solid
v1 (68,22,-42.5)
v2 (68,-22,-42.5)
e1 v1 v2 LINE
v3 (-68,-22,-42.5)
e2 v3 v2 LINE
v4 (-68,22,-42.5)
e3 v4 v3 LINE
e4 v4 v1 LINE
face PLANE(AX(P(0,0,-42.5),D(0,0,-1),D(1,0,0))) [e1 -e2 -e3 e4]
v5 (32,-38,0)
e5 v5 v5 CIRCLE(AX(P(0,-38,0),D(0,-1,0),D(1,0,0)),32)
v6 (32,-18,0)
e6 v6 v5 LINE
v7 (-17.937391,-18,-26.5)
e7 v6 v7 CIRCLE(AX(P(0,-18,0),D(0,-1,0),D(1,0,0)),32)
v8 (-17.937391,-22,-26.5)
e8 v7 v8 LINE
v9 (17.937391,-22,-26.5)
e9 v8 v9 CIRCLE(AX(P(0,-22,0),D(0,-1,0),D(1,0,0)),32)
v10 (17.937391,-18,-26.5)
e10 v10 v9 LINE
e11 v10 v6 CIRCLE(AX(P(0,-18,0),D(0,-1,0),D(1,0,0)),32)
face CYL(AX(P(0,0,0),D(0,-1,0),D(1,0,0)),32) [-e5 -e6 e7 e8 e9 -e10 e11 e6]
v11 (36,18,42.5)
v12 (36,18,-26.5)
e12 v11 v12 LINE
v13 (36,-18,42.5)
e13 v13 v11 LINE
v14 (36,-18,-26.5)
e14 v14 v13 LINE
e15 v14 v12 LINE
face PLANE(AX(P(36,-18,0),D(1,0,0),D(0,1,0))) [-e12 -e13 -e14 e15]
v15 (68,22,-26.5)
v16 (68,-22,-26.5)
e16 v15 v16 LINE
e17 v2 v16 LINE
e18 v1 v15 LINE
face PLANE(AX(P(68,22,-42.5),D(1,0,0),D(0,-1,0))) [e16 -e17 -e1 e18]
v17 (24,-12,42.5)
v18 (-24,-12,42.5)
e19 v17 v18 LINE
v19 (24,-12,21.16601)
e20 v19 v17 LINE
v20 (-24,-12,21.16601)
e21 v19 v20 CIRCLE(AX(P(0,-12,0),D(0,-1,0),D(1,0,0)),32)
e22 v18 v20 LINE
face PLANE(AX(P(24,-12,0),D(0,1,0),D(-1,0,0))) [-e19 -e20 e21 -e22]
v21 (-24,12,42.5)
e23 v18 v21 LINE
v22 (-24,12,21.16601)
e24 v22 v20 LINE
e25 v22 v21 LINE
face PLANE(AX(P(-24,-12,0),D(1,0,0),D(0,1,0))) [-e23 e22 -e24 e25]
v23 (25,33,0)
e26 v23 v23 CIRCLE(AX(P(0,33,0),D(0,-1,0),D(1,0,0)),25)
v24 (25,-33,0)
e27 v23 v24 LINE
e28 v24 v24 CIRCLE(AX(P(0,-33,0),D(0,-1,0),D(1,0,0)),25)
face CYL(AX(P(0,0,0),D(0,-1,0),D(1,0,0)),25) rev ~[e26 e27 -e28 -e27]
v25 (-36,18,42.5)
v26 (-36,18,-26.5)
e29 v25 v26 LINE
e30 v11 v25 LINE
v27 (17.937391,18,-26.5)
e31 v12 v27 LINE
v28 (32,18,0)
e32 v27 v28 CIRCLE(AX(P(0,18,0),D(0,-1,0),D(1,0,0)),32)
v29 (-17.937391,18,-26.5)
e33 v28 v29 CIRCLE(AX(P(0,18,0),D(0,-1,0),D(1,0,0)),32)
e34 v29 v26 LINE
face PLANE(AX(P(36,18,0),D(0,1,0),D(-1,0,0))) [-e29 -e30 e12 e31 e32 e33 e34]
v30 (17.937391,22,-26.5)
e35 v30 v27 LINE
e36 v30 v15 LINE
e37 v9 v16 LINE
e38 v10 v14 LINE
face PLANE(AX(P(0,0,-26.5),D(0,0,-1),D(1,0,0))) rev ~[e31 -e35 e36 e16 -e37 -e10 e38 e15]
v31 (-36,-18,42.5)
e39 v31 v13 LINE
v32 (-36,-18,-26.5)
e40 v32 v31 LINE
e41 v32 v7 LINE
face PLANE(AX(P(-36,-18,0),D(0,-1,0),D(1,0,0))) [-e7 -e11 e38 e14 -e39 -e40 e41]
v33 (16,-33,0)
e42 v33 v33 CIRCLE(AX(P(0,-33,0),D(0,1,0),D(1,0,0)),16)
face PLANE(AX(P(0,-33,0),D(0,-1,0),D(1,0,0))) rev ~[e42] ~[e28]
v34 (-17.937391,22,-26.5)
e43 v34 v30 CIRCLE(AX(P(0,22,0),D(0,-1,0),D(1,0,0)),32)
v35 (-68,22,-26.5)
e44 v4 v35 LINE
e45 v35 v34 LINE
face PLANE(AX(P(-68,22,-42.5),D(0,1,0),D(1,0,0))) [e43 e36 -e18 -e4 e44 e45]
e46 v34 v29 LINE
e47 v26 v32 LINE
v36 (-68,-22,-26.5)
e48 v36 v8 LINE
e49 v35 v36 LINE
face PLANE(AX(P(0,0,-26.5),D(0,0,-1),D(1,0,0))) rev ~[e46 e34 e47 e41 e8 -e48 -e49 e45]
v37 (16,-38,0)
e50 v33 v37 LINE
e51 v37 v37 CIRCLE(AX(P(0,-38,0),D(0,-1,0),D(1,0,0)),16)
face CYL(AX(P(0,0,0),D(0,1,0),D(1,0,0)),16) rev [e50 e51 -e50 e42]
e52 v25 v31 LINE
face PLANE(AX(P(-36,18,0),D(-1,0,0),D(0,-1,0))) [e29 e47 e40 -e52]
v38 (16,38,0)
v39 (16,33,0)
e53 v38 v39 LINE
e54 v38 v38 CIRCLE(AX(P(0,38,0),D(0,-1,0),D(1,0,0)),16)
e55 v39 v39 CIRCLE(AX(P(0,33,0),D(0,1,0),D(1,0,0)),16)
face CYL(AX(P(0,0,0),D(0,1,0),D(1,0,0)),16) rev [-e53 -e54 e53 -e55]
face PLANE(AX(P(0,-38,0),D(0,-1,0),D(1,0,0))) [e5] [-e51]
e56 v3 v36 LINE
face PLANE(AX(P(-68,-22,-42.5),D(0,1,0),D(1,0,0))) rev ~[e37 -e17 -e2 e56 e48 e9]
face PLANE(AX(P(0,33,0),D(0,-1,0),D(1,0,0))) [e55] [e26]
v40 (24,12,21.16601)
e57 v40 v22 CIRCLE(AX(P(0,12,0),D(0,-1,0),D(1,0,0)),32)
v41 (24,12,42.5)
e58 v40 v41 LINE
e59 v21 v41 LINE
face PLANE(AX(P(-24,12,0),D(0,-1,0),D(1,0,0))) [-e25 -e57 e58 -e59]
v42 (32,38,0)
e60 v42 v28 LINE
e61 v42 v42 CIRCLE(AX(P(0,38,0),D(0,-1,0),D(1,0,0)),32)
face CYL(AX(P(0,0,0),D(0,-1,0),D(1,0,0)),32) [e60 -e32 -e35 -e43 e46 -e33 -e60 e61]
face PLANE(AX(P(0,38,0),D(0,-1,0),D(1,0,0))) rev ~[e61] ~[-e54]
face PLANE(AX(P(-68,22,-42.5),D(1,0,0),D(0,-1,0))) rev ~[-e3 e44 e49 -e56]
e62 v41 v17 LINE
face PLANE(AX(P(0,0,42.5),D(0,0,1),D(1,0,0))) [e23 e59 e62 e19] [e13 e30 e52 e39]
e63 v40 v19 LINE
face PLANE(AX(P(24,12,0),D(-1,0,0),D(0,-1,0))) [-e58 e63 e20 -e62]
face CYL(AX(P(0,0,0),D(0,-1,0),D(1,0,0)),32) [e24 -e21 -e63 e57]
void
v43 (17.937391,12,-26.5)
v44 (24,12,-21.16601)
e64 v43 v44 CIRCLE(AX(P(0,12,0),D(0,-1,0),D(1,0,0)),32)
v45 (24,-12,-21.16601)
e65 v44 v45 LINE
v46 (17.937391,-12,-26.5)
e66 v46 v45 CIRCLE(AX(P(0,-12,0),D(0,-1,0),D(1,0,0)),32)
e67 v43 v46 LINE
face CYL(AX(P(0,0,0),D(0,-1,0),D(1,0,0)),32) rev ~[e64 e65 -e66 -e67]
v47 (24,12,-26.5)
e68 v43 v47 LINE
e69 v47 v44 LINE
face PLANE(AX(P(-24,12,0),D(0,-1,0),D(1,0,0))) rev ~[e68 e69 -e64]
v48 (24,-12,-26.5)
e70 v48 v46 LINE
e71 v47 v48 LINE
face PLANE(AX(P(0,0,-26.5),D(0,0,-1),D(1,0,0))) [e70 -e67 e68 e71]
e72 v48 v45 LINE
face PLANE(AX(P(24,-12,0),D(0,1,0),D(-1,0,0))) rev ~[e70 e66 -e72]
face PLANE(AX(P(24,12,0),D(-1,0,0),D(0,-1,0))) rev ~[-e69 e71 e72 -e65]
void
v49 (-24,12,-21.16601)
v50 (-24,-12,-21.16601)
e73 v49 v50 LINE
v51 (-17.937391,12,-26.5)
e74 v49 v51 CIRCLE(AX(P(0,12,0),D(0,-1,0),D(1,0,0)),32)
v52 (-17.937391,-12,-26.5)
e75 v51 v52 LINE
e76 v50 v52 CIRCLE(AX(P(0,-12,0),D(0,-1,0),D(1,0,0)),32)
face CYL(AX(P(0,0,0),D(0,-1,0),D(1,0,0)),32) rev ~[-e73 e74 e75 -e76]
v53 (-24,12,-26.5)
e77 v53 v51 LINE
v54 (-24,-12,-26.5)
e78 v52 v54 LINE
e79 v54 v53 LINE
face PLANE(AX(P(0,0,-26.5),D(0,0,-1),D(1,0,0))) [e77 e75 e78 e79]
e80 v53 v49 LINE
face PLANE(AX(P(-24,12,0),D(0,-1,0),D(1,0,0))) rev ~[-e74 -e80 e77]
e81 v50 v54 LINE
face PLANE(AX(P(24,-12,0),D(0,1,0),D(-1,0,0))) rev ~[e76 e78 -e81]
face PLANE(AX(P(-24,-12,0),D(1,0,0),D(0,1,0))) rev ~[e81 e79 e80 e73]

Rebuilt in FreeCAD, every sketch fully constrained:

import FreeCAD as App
import Part
import Sketcher
Q = App.Units.Quantity

doc = App.newDocument("Part")
params = doc.addObject("Spreadsheet::Sheet", "Params")
for row, (alias, value) in enumerate([
    ("sketch1_diameter", "64 mm"),
    ("sketch1_diameter2", "32 mm"),
    ("pad1_length", "76 mm"),
    ("sketch2_width", "72 mm"),
    ("sketch2_width2", "48 mm"),
    ("sketch2_height", "36 mm"),
    ("sketch2_height2", "24 mm"),
    ("pad2_length", "85 mm"),
    ("sketch3_diameter", "32 mm"),
    ("sketch4_width", "136 mm"),
    ("sketch4_height", "44 mm"),
    ("pad3_length", "16 mm"),
    ("sketch5_diameter", "50 mm"),
    ("pocket2_length", "66 mm"),
], start=1):
    params.set(f"A{row}", alias)
    params.set(f"B{row}", "=" + value)
    params.setAlias(f"B{row}", alias)

body = doc.addObject("PartDesign::Body", "Body")

sketch1 = body.newObject("Sketcher::SketchObject", "Sketch")
sketch1.AttachmentSupport = (doc.getObject("XZ_Plane"), [""])
sketch1.MapMode = "FlatFace"
sketch1.addGeometry(Part.Circle(App.Vector(0, 0, 0), App.Vector(0, 0, 1), 32), False)
sketch1.addGeometry(Part.Circle(App.Vector(0, 0, 0), App.Vector(0, 0, 1), 16), False)
sketch1.addConstraint(Sketcher.Constraint("Coincident", 0, 3, -1, 1))
sketch1.addConstraint(Sketcher.Constraint("Coincident", 1, 3, -1, 1))
sketch1.addConstraint(Sketcher.Constraint("Diameter", 0, Q("64 mm")))
sketch1.addConstraint(Sketcher.Constraint("Diameter", 1, Q("32 mm")))
sketch1.setExpression("Constraints[2]", "Params.sketch1_diameter")
sketch1.setExpression("Constraints[3]", "Params.sketch1_diameter2")
pad1 = body.newObject("PartDesign::Pad", "Pad")
pad1.Profile = sketch1
pad1.setExpression("Length", "Params.pad1_length")
pad1.Midplane = True

sketch2 = body.newObject("Sketcher::SketchObject", "Sketch001")
sketch2.AttachmentSupport = (doc.getObject("XY_Plane"), [""])
sketch2.MapMode = "FlatFace"
sketch2.addGeometry(Part.LineSegment(App.Vector(-36, 18, 0), App.Vector(-36, -18, 0)), False)
sketch2.addGeometry(Part.LineSegment(App.Vector(-36, -18, 0), App.Vector(36, -18, 0)), False)
sketch2.addGeometry(Part.LineSegment(App.Vector(36, -18, 0), App.Vector(36, 18, 0)), False)
sketch2.addGeometry(Part.LineSegment(App.Vector(36, 18, 0), App.Vector(-36, 18, 0)), False)
sketch2.addGeometry(Part.LineSegment(App.Vector(-24, -12, 0), App.Vector(-24, 12, 0)), False)
sketch2.addGeometry(Part.LineSegment(App.Vector(-24, 12, 0), App.Vector(24, 12, 0)), False)
sketch2.addGeometry(Part.LineSegment(App.Vector(24, 12, 0), App.Vector(24, -12, 0)), False)
sketch2.addGeometry(Part.LineSegment(App.Vector(24, -12, 0), App.Vector(-24, -12, 0)), False)
sketch2.addConstraint(Sketcher.Constraint("Coincident", 0, 2, 1, 1))
sketch2.addConstraint(Sketcher.Constraint("Coincident", 1, 2, 2, 1))
sketch2.addConstraint(Sketcher.Constraint("Coincident", 2, 2, 3, 1))
sketch2.addConstraint(Sketcher.Constraint("Coincident", 3, 2, 0, 1))
sketch2.addConstraint(Sketcher.Constraint("Coincident", 4, 2, 5, 1))
sketch2.addConstraint(Sketcher.Constraint("Coincident", 5, 2, 6, 1))
sketch2.addConstraint(Sketcher.Constraint("Coincident", 6, 2, 7, 1))
sketch2.addConstraint(Sketcher.Constraint("Coincident", 7, 2, 4, 1))
sketch2.addConstraint(Sketcher.Constraint("Vertical", 0))
sketch2.addConstraint(Sketcher.Constraint("Horizontal", 1))
sketch2.addConstraint(Sketcher.Constraint("Vertical", 2))
sketch2.addConstraint(Sketcher.Constraint("Horizontal", 3))
sketch2.addConstraint(Sketcher.Constraint("Vertical", 4))
sketch2.addConstraint(Sketcher.Constraint("Horizontal", 5))
sketch2.addConstraint(Sketcher.Constraint("Vertical", 6))
sketch2.addConstraint(Sketcher.Constraint("Horizontal", 7))
sketch2.addConstraint(Sketcher.Constraint("Symmetric", 0, 2, 2, 2, -1, 1))
sketch2.addConstraint(Sketcher.Constraint("Symmetric", 4, 2, 6, 2, -1, 1))
sketch2.addConstraint(Sketcher.Constraint("DistanceX", 1, 1, 1, 2, Q("72 mm")))
sketch2.addConstraint(Sketcher.Constraint("DistanceX", 5, 1, 5, 2, Q("48 mm")))
sketch2.addConstraint(Sketcher.Constraint("DistanceY", 0, 2, 0, 1, Q("36 mm")))
sketch2.addConstraint(Sketcher.Constraint("DistanceY", 4, 1, 4, 2, Q("24 mm")))
sketch2.setExpression("Constraints[18]", "Params.sketch2_width")
sketch2.setExpression("Constraints[19]", "Params.sketch2_width2")
sketch2.setExpression("Constraints[20]", "Params.sketch2_height")
sketch2.setExpression("Constraints[21]", "Params.sketch2_height2")
pad2 = body.newObject("PartDesign::Pad", "Pad001")
pad2.Profile = sketch2
pad2.setExpression("Length", "Params.pad2_length")
pad2.Midplane = True

sketch3 = body.newObject("Sketcher::SketchObject", "Sketch002")
sketch3.AttachmentSupport = (doc.getObject("XZ_Plane"), [""])
sketch3.MapMode = "FlatFace"
sketch3.AttachmentOffset = App.Placement(App.Vector(0, 0, 18), App.Rotation())
sketch3.addGeometry(Part.Circle(App.Vector(0, 0, 0), App.Vector(0, 0, 1), 16), False)
sketch3.addConstraint(Sketcher.Constraint("Coincident", 0, 3, -1, 1))
sketch3.addConstraint(Sketcher.Constraint("Diameter", 0, Q("32 mm")))
sketch3.setExpression("Constraints[1]", "Params.sketch3_diameter")
pocket1 = body.newObject("PartDesign::Pocket", "Pocket")
pocket1.Profile = sketch3
pocket1.Type = "ThroughAll"

sketch4 = body.newObject("Sketcher::SketchObject", "Sketch003")
sketch4.AttachmentSupport = (doc.getObject("XY_Plane"), [""])
sketch4.MapMode = "FlatFace"
sketch4.AttachmentOffset = App.Placement(App.Vector(0, 0, -42.5), App.Rotation())
sketch4.addGeometry(Part.LineSegment(App.Vector(-68, -22, 0), App.Vector(-68, 22, 0)), False)
sketch4.addGeometry(Part.LineSegment(App.Vector(-68, 22, 0), App.Vector(68, 22, 0)), False)
sketch4.addGeometry(Part.LineSegment(App.Vector(68, 22, 0), App.Vector(68, -22, 0)), False)
sketch4.addGeometry(Part.LineSegment(App.Vector(68, -22, 0), App.Vector(-68, -22, 0)), False)
sketch4.addConstraint(Sketcher.Constraint("Coincident", 0, 2, 1, 1))
sketch4.addConstraint(Sketcher.Constraint("Coincident", 1, 2, 2, 1))
sketch4.addConstraint(Sketcher.Constraint("Coincident", 2, 2, 3, 1))
sketch4.addConstraint(Sketcher.Constraint("Coincident", 3, 2, 0, 1))
sketch4.addConstraint(Sketcher.Constraint("Vertical", 0))
sketch4.addConstraint(Sketcher.Constraint("Horizontal", 1))
sketch4.addConstraint(Sketcher.Constraint("Vertical", 2))
sketch4.addConstraint(Sketcher.Constraint("Horizontal", 3))
sketch4.addConstraint(Sketcher.Constraint("Symmetric", 0, 2, 2, 2, -1, 1))
sketch4.addConstraint(Sketcher.Constraint("DistanceX", 1, 1, 1, 2, Q("136 mm")))
sketch4.addConstraint(Sketcher.Constraint("DistanceY", 0, 1, 0, 2, Q("44 mm")))
sketch4.setExpression("Constraints[9]", "Params.sketch4_width")
sketch4.setExpression("Constraints[10]", "Params.sketch4_height")
pad3 = body.newObject("PartDesign::Pad", "Pad002")
pad3.Profile = sketch4
pad3.setExpression("Length", "Params.pad3_length")

sketch5 = body.newObject("Sketcher::SketchObject", "Sketch004")
sketch5.AttachmentSupport = (doc.getObject("XZ_Plane"), [""])
sketch5.MapMode = "FlatFace"
sketch5.addGeometry(Part.Circle(App.Vector(0, 0, 0), App.Vector(0, 0, 1), 25), False)
sketch5.addConstraint(Sketcher.Constraint("Coincident", 0, 3, -1, 1))
sketch5.addConstraint(Sketcher.Constraint("Diameter", 0, Q("50 mm")))
sketch5.setExpression("Constraints[1]", "Params.sketch5_diameter")
pocket2 = body.newObject("PartDesign::Pocket", "Pocket001")
pocket2.Profile = sketch5
pocket2.setExpression("Length", "Params.pocket2_length")
pocket2.Midplane = True

doc.recompute()
